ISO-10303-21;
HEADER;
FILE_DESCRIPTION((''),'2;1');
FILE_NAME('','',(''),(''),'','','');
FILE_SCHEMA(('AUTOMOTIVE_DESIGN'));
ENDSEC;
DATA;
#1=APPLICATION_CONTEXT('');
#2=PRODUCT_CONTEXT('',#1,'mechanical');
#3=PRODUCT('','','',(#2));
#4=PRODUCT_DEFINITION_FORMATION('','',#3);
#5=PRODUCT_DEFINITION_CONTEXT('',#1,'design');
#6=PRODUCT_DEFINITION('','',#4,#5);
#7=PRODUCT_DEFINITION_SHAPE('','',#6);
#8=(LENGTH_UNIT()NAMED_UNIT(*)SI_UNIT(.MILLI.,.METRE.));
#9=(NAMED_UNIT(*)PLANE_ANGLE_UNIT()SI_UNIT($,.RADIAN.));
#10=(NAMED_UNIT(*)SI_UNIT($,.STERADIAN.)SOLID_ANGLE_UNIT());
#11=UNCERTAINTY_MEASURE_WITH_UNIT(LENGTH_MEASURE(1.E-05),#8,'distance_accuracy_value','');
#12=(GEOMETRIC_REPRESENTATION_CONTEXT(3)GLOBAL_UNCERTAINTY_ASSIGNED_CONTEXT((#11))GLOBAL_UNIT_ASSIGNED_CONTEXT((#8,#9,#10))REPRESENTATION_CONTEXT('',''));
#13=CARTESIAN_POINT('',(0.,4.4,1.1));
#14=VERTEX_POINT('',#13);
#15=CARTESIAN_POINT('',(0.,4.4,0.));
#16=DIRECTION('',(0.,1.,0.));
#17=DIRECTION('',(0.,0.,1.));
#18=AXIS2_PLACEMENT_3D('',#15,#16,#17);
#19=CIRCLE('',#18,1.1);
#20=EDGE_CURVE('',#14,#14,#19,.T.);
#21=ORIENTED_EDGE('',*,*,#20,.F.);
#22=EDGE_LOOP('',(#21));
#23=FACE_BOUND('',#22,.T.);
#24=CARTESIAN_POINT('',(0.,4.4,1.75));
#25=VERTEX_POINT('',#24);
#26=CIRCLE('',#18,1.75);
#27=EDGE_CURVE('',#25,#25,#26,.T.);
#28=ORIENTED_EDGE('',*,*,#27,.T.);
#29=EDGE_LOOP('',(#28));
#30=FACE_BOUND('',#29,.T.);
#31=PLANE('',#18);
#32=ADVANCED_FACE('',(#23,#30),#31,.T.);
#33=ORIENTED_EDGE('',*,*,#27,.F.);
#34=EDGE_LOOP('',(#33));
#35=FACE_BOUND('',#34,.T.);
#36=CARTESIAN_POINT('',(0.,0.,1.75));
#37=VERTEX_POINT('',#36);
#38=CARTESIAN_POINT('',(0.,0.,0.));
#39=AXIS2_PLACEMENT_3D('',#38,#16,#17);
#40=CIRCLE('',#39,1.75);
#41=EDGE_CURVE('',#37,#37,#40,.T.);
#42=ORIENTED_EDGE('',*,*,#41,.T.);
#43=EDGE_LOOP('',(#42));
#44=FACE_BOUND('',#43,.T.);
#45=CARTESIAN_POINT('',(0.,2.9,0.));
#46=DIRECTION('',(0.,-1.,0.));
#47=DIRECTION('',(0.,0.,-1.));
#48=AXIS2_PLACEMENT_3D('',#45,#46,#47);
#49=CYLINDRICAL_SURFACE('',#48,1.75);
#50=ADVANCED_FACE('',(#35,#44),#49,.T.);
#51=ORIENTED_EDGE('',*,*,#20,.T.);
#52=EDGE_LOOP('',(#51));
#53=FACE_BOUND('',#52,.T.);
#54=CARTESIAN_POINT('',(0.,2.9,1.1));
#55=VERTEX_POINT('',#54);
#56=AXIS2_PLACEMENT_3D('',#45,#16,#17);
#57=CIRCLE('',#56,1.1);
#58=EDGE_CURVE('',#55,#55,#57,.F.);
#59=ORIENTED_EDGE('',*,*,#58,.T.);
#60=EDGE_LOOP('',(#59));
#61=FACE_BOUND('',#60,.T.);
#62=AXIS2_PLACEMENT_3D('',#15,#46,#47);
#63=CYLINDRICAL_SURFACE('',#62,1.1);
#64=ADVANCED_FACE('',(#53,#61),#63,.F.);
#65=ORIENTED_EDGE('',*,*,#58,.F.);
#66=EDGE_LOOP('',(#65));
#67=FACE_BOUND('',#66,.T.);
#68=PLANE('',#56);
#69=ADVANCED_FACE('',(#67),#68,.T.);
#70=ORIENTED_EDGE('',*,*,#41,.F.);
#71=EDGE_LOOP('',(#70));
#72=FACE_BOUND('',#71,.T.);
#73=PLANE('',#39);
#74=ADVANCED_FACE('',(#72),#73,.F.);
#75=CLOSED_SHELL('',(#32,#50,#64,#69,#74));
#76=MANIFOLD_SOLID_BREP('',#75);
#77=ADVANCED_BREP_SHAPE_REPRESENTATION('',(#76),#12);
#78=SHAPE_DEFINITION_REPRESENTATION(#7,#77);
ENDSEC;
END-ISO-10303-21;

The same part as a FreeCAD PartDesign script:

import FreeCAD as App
import Part
import Sketcher
from FreeCAD import Vector
Q = App.Units.Quantity

doc = App.newDocument("Part")
body = doc.addObject("PartDesign::Body", "Body")

sketch1 = body.newObject("Sketcher::SketchObject", "Sketch")
sketch1.AttachmentSupport = (doc.getObject("XZ_Plane"), [""])
sketch1.MapMode = "FlatFace"
sketch1.addGeometry(Part.Circle(Vector(0, 0, 0), Vector(0, 0, 1), 1.75), False)
sketch1.addConstraint([
    Sketcher.Constraint("Coincident", 0, 3, -1, 1),
    Sketcher.Constraint("Diameter", 0, Q("3.5 mm")),
])
pad1 = body.newObject("PartDesign::Pad", "Pad")
pad1.Profile = sketch1
pad1.Length = 2.9
pad1.Reversed = True

sketch2 = body.newObject("Sketcher::SketchObject", "Sketch001")
sketch2.AttachmentSupport = (doc.getObject("XZ_Plane"), [""])
sketch2.MapMode = "FlatFace"
sketch2.AttachmentOffset = App.Placement(Vector(0, 0, -2.9), App.Rotation())
sketch2.addGeometry([
    Part.Circle(Vector(0, 0, 0), Vector(0, 0, 1), 1.75),
    Part.Circle(Vector(0, 0, 0), Vector(0, 0, 1), 1.1),
], False)
sketch2.addConstraint([
    Sketcher.Constraint("Coincident", 0, 3, -1, 1),
    Sketcher.Constraint("Coincident", 1, 3, -1, 1),
    Sketcher.Constraint("Diameter", 0, Q("3.5 mm")),
    Sketcher.Constraint("Diameter", 1, Q("2.2 mm")),
])
pad2 = body.newObject("PartDesign::Pad", "Pad001")
pad2.Profile = sketch2
pad2.Length = 1.5
pad2.Reversed = True

doc.recompute()
